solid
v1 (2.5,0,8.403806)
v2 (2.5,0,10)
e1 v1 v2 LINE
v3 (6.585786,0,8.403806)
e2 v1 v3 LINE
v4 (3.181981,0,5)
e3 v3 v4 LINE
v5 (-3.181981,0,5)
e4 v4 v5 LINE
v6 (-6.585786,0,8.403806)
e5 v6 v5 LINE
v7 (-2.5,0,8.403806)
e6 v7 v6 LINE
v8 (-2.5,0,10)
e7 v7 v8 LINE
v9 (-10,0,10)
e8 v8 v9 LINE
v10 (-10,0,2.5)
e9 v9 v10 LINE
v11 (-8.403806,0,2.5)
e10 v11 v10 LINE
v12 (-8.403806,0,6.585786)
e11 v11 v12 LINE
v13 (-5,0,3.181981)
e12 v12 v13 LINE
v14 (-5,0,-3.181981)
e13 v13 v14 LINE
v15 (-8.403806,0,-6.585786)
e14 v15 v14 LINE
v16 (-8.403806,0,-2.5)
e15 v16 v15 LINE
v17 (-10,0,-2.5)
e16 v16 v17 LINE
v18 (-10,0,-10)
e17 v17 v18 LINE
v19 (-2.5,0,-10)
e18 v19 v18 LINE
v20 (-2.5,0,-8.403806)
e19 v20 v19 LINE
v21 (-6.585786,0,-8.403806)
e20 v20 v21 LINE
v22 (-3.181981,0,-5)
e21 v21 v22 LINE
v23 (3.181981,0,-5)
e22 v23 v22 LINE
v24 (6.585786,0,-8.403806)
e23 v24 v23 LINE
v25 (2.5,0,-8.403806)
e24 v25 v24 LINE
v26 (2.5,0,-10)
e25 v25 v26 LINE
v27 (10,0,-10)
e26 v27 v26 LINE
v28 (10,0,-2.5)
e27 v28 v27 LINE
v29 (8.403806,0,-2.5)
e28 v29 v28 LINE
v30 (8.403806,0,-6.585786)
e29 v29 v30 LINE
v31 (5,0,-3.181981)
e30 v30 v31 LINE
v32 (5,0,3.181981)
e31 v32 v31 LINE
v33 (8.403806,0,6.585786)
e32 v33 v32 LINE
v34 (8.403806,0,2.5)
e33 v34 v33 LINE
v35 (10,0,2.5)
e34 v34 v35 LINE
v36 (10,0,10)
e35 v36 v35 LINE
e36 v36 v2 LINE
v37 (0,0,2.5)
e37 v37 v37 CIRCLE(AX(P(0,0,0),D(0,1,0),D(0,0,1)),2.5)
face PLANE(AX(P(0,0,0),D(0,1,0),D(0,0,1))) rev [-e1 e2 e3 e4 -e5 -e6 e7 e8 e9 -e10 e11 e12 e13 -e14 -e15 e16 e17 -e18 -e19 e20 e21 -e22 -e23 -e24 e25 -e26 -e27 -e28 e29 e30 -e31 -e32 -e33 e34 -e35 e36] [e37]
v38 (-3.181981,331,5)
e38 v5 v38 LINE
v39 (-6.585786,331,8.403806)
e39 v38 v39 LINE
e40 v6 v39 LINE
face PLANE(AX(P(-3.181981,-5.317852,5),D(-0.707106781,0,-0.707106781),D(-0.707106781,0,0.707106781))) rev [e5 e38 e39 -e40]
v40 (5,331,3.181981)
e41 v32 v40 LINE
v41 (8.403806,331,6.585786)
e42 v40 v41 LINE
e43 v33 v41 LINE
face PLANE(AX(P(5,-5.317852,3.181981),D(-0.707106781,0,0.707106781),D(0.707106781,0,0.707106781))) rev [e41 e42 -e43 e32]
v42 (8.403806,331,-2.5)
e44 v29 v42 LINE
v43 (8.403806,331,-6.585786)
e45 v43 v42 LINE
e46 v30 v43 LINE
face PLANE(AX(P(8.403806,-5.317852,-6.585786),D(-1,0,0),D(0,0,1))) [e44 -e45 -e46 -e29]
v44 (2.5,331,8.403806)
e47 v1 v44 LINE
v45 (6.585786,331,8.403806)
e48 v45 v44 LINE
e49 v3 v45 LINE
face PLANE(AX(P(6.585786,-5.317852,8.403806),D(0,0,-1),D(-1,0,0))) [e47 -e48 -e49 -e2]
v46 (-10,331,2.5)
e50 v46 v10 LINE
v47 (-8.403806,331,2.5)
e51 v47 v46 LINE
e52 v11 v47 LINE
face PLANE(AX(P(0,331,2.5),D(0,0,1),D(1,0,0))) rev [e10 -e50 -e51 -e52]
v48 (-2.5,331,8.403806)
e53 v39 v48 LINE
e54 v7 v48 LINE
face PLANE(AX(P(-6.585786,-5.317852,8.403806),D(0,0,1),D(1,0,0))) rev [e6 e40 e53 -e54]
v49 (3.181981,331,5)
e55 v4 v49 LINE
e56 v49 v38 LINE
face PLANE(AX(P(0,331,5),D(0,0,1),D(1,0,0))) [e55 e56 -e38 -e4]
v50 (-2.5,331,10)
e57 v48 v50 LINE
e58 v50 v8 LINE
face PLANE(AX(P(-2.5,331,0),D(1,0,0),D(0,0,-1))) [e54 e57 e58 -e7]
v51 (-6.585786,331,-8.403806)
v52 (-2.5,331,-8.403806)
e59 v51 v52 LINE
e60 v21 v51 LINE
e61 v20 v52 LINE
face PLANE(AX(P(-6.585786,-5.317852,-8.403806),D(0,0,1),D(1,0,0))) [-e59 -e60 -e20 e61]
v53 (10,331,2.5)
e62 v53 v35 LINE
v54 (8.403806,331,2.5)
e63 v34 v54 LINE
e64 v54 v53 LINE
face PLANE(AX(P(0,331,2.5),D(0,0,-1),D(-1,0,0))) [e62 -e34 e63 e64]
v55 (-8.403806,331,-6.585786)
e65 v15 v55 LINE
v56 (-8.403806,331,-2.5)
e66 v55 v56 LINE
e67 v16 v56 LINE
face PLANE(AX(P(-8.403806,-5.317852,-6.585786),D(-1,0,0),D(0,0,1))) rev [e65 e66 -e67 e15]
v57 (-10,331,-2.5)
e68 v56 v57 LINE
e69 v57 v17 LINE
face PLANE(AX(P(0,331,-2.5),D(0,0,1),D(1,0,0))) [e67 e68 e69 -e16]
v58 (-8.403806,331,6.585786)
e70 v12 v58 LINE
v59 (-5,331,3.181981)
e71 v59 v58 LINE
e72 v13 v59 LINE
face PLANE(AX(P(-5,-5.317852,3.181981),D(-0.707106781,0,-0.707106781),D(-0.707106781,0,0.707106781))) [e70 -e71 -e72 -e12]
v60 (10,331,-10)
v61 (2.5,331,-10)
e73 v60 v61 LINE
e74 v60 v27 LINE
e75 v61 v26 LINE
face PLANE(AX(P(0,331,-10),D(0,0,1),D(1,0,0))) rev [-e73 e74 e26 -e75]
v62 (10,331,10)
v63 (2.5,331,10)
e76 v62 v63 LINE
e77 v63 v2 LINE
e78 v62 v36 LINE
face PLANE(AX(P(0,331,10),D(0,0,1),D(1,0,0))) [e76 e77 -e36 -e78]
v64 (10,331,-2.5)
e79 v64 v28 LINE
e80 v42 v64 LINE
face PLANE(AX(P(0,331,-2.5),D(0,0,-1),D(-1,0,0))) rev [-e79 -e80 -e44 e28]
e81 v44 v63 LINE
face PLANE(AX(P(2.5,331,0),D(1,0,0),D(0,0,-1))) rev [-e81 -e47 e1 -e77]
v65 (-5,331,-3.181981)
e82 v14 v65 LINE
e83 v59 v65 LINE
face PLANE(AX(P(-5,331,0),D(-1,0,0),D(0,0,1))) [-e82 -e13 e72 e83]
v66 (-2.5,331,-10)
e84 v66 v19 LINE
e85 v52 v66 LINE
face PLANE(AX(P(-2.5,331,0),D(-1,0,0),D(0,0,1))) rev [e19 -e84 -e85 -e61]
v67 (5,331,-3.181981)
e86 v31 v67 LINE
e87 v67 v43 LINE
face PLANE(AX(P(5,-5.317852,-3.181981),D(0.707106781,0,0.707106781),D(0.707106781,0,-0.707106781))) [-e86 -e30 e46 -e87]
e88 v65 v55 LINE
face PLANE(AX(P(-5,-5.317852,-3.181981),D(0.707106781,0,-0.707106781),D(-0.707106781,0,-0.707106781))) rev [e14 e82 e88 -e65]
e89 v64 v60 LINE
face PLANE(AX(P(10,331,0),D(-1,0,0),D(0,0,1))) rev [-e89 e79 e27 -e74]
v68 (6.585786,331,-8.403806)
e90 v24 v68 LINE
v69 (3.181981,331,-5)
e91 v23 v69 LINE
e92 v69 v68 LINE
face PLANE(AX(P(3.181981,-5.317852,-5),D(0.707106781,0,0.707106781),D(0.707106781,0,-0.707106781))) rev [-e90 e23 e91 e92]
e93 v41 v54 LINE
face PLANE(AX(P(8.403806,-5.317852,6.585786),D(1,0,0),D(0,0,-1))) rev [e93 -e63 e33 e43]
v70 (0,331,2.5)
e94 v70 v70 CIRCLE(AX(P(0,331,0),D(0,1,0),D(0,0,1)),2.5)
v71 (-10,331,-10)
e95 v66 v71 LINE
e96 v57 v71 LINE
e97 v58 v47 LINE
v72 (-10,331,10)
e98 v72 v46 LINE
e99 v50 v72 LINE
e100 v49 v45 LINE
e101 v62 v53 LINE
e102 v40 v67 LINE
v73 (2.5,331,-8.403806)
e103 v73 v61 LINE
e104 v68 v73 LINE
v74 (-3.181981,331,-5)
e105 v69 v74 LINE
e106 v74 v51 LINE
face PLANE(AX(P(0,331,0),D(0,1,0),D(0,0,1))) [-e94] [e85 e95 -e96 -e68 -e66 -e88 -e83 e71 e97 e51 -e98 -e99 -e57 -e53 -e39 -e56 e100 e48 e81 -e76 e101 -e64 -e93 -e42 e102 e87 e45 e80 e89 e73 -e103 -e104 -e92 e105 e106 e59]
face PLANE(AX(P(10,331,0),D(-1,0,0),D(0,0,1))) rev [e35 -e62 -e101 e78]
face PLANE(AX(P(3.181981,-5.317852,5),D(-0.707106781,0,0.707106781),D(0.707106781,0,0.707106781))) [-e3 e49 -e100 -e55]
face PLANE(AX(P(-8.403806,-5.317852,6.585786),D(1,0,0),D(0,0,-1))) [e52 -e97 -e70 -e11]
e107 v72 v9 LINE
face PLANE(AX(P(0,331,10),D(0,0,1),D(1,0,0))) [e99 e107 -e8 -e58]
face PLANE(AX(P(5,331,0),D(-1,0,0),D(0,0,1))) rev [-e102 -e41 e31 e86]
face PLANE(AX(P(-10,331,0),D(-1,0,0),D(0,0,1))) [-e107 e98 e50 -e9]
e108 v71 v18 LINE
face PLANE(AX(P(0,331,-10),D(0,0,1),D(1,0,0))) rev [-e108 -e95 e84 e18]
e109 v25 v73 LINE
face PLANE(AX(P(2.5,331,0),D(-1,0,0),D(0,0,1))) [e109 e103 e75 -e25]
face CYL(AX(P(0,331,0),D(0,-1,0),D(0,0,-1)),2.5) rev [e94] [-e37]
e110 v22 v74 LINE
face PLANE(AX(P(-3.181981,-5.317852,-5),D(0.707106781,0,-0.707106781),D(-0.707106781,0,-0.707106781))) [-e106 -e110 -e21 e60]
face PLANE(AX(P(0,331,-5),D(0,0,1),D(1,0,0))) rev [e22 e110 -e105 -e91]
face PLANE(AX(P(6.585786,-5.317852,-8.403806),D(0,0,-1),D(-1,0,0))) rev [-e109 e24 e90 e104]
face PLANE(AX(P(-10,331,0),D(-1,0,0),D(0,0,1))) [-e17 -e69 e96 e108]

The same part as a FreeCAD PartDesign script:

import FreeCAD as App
import Part
import Sketcher


def add_polygon(sketch, points):
    """Adds a closed chain of lines whose ends are joined by coincident constraints."""
    first, n = sketch.GeometryCount, len(points)
    for a, b in zip(points, points[1:] + points[:1]):
        sketch.addGeometry(Part.LineSegment(App.Vector(*a, 0), App.Vector(*b, 0)), False)
    for i in range(n):
        sketch.addConstraint(Sketcher.Constraint("Coincident", first + i, 2, first + (i + 1) % n, 1))

doc = App.newDocument("Part")
body = doc.addObject("PartDesign::Body", "Body")

# Sketch on XZ plane
sketch1 = body.newObject("Sketcher::SketchObject", "Sketch")
sketch1.AttachmentSupport = (doc.getObject("XZ_Plane"), [""])
sketch1.MapMode = "FlatFace"
add_polygon(sketch1, [(2.5, 10), (10, 10), (10, 2.5), (5, 2.5), (5, -2.5), (10, -2.5), (10, -10), (2.5, -10), (2.5, -5), (-2.5, -5), (-2.5, -10), (-10, -10), (-10, -2.5), (-5, -2.5), (-5, 2.5), (-10, 2.5), (-10, 10), (-2.5, 10), (-2.5, 5), (2.5, 5)])  # lines 0-19
sketch1.addGeometry(Part.Circle(App.Vector(0, 0, 0), App.Vector(0, 0, 1), 2.5), False)  # 20
sketch1.addConstraint(Sketcher.Constraint("Horizontal", 0))
sketch1.addConstraint(Sketcher.Constraint("Vertical", 1))
sketch1.addConstraint(Sketcher.Constraint("Horizontal", 2))
sketch1.addConstraint(Sketcher.Constraint("Vertical", 3))
sketch1.addConstraint(Sketcher.Constraint("Horizontal", 4))
sketch1.addConstraint(Sketcher.Constraint("Vertical", 5))
sketch1.addConstraint(Sketcher.Constraint("Horizontal", 6))
sketch1.addConstraint(Sketcher.Constraint("Vertical", 7))
sketch1.addConstraint(Sketcher.Constraint("Horizontal", 8))
sketch1.addConstraint(Sketcher.Constraint("Vertical", 9))
sketch1.addConstraint(Sketcher.Constraint("Horizontal", 10))
sketch1.addConstraint(Sketcher.Constraint("Vertical", 11))
sketch1.addConstraint(Sketcher.Constraint("Horizontal", 12))
sketch1.addConstraint(Sketcher.Constraint("Vertical", 13))
sketch1.addConstraint(Sketcher.Constraint("Horizontal", 14))
sketch1.addConstraint(Sketcher.Constraint("Vertical", 15))
sketch1.addConstraint(Sketcher.Constraint("Horizontal", 16))
sketch1.addConstraint(Sketcher.Constraint("Vertical", 17))
sketch1.addConstraint(Sketcher.Constraint("Horizontal", 18))
sketch1.addConstraint(Sketcher.Constraint("Vertical", 19))
sketch1.addConstraint(Sketcher.Constraint("Coincident", 20, 3, -1, 1))
sketch1.addConstraint(Sketcher.Constraint("Symmetric", 0, 2, 10, 2, -1, 1))
sketch1.addConstraint(Sketcher.Constraint("Symmetric", 2, 2, 12, 2, -1, 1))
sketch1.addConstraint(Sketcher.Constraint("Symmetric", 4, 2, 14, 2, -1, 1))
sketch1.addConstraint(Sketcher.Constraint("Symmetric", 6, 2, 16, 2, -1, 1))
sketch1.addConstraint(Sketcher.Constraint("Symmetric", 8, 2, 18, 2, -1, 1))
sketch1.addConstraint(Sketcher.Constraint("Symmetric", 6, 2, 9, 2, -2))
sketch1.addConstraint(Sketcher.Constraint("Symmetric", 4, 2, 11, 2, -2))
sketch1.addConstraint(Sketcher.Constraint("Equal", 4, 8))
sketch1.addConstraint(Sketcher.Constraint("Equal", 16, 1))
sketch1.addConstraint(Sketcher.Constraint("Equal", 18, 3))
sketch1.addConstraint(Sketcher.Constraint("Equal", 3, 7))
sketch1.addConstraint(Sketcher.Constraint("Diameter", 20, 5.0))
sketch1.addConstraint(Sketcher.Constraint("DistanceX", 2, 2, 2, 1, 5.0))
sketch1.addConstraint(Sketcher.Constraint("DistanceX", 0, 1, 0, 2, 7.5))
pad1 = body.newObject("PartDesign::Pad", "Pad")
pad1.Profile = sketch1
pad1.Length = 331
pad1.Reversed = True

# Sketch on XZ plane
sketch2 = body.newObject("Sketcher::SketchObject", "Sketch001")
sketch2.AttachmentSupport = (doc.getObject("XZ_Plane"), [""])
sketch2.MapMode = "FlatFace"
sketch2.AttachmentOffset = App.Placement(App.Vector(0, 0, -331), App.Rotation())
add_polygon(sketch2, [(-2.5, -8.4), (-6.6, -8.4), (-3.2, -5), (-2.5, -5)])  # lines 0-3
add_polygon(sketch2, [(-5, -3.2), (-8.4, -6.6), (-8.4, -2.5), (-5, -2.5)])  # lines 4-7
add_polygon(sketch2, [(-2.5, 5), (-3.2, 5), (-6.6, 8.4), (-2.5, 8.4)])  # lines 8-11
add_polygon(sketch2, [(-5, 2.5), (-8.4, 2.5), (-8.4, 6.6), (-5, 3.2)])  # lines 12-15
add_polygon(sketch2, [(2.5, 8.4), (6.6, 8.4), (3.2, 5), (2.5, 5)])  # lines 16-19
add_polygon(sketch2, [(5, 2.5), (5, 3.2), (8.4, 6.6), (8.4, 2.5)])  # lines 20-23
add_polygon(sketch2, [(5, -2.5), (8.4, -2.5), (8.4, -6.6), (5, -3.2)])  # lines 24-27
add_polygon(sketch2, [(2.5, -5), (3.2, -5), (6.6, -8.4), (2.5, -8.4)])  # lines 28-31
sketch2.addConstraint(Sketcher.Constraint("Horizontal", 0))
sketch2.addConstraint(Sketcher.Constraint("Horizontal", 2))
sketch2.addConstraint(Sketcher.Constraint("Vertical", 3))
sketch2.addConstraint(Sketcher.Constraint("Vertical", 5))
sketch2.addConstraint(Sketcher.Constraint("Horizontal", 6))
sketch2.addConstraint(Sketcher.Constraint("Vertical", 7))
sketch2.addConstraint(Sketcher.Constraint("Horizontal", 8))
sketch2.addConstraint(Sketcher.Constraint("Horizontal", 10))
sketch2.addConstraint(Sketcher.Constraint("Vertical", 11))
sketch2.addConstraint(Sketcher.Constraint("Horizontal", 12))
sketch2.addConstraint(Sketcher.Constraint("Vertical", 13))
sketch2.addConstraint(Sketcher.Constraint("Vertical", 15))
sketch2.addConstraint(Sketcher.Constraint("Horizontal", 16))
sketch2.addConstraint(Sketcher.Constraint("Horizontal", 18))
sketch2.addConstraint(Sketcher.Constraint("Vertical", 19))
sketch2.addConstraint(Sketcher.Constraint("Vertical", 20))
sketch2.addConstraint(Sketcher.Constraint("Vertical", 22))
sketch2.addConstraint(Sketcher.Constraint("Horizontal", 23))
sketch2.addConstraint(Sketcher.Constraint("Horizontal", 24))
sketch2.addConstraint(Sketcher.Constraint("Vertical", 25))
sketch2.addConstraint(Sketcher.Constraint("Vertical", 27))
sketch2.addConstraint(Sketcher.Constraint("Horizontal", 28))
sketch2.addConstraint(Sketcher.Constraint("Horizontal", 30))
sketch2.addConstraint(Sketcher.Constraint("Vertical", 31))
sketch2.addConstraint(Sketcher.Constraint("Symmetric", 0, 2, 16, 2, -1, 1))
sketch2.addConstraint(Sketcher.Constraint("Symmetric", 1, 2, 17, 2, -1, 1))
sketch2.addConstraint(Sketcher.Constraint("Symmetric", 7, 2, 20, 2, -1, 1))
sketch2.addConstraint(Sketcher.Constraint("Symmetric", 4, 2, 21, 2, -1, 1))
sketch2.addConstraint(Sketcher.Constraint("Symmetric", 12, 2, 24, 2, -1, 1))
sketch2.addConstraint(Sketcher.Constraint("Symmetric", 14, 2, 26, 2, -1, 1))
sketch2.addConstraint(Sketcher.Constraint("Symmetric", 8, 2, 28, 2, -1, 1))
sketch2.addConstraint(Sketcher.Constraint("Symmetric", 9, 2, 29, 2, -1, 1))
sketch2.addConstraint(Sketcher.Constraint("Symmetric", 9, 2, 16, 2, -2))
sketch2.addConstraint(Sketcher.Constraint("Symmetric", 8, 2, 17, 2, -2))
sketch2.addConstraint(Sketcher.Constraint("Symmetric", 14, 2, 20, 2, -2))
sketch2.addConstraint(Sketcher.Constraint("Symmetric", 13, 2, 21, 2, -2))
sketch2.addConstraint(Sketcher.Constraint("Parallel", 1, 4))
sketch2.addConstraint(Sketcher.Constraint("Perpendicular", 4, 9))
sketch2.addConstraint(Sketcher.Constraint("Perpendicular", 21, 26))
sketch2.addConstraint(Sketcher.Constraint("Horizontal", 15, 2, 22, 2))
sketch2.addConstraint(Sketcher.Constraint("Horizontal", 6, 2, 24, 2))
sketch2.addConstraint(Sketcher.Constraint("Vertical", 3, 2, 10, 2))
sketch2.addConstraint(Sketcher.Constraint("Vertical", 19, 2, 30, 2))
sketch2.addConstraint(Sketcher.Constraint("Equal", 10, 16))
sketch2.addConstraint(Sketcher.Constraint("Equal", 24, 3))
sketch2.addConstraint(Sketcher.Constraint("Equal", 30, 5))
sketch2.addConstraint(Sketcher.Constraint("DistanceY", 1, 2, -1, 1, 5.0))
sketch2.addConstraint(Sketcher.Constraint("DistanceX", 6, 2, -1, 1, 5.0))
sketch2.addConstraint(Sketcher.Constraint("DistanceY", 5, 2, 12, 2, 5.0))
sketch2.addConstraint(Sketcher.Constraint("DistanceX", 11, 2, 18, 2, 5.0))
sketch2.addConstraint(Sketcher.Constraint("DistanceX", 2, 1, 2, 2, 0.681981))
sketch2.addConstraint(Sketcher.Constraint("Distance", 1, 4.813708))
pocket1 = body.newObject("PartDesign::Pocket", "Pocket")
pocket1.Profile = sketch2
pocket1.Length = 331
pocket1.Reversed = True

doc.recompute()
